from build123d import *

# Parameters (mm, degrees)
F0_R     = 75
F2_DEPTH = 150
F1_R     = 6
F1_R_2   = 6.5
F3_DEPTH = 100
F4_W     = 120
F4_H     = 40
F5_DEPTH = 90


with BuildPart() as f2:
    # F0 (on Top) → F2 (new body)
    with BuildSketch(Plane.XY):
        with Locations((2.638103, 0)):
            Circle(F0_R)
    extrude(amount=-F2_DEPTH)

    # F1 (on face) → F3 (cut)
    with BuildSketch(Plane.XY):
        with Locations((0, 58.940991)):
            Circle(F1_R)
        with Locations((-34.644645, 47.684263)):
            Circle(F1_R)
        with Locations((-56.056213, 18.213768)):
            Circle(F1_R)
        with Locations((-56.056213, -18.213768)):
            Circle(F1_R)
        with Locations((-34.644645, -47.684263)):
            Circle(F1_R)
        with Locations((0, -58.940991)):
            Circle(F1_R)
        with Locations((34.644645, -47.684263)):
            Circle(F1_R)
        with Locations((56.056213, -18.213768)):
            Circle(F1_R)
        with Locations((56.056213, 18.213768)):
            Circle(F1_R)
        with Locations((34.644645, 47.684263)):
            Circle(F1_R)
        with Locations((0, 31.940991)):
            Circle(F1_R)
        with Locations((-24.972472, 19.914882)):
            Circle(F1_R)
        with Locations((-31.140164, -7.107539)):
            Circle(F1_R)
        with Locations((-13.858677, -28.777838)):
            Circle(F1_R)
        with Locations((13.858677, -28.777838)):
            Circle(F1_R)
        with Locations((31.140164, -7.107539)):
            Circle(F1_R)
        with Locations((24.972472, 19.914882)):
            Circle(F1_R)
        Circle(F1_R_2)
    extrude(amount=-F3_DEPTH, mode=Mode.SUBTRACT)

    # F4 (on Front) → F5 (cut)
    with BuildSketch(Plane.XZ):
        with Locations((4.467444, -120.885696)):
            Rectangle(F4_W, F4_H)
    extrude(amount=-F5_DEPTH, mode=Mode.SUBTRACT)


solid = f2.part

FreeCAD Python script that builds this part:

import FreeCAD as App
import Part
import Sketcher

V = App.Vector

doc = App.newDocument("Part")
body = doc.addObject("PartDesign::Body", "Body")

# Sketch on XY plane
sketch1 = doc.addObject("Sketcher::SketchObject", "Sketch")
body.addObject(sketch1)
sketch1.AttachmentSupport = (doc.XY_Plane, [""])
sketch1.MapMode = "FlatFace"
sketch1.addGeometry(Part.Circle(V(3, 0, 0), V(0, 0, 1), 75), False)
sketch1.addConstraint(Sketcher.Constraint("PointOnObject", 0, 3, -1))
sketch1.addConstraint(Sketcher.Constraint("Diameter", 0, 150.0))
sketch1.addConstraint(Sketcher.Constraint("DistanceX", -1, 1, 0, 3, 2.638103))
pad1 = doc.addObject("PartDesign::Pad", "Pad")
body.addObject(pad1)
pad1.Profile = sketch1
pad1.Length = 150
pad1.Reversed = True

# Sketch on XY plane
sketch2 = doc.addObject("Sketcher::SketchObject", "Sketch001")
body.addObject(sketch2)
sketch2.AttachmentSupport = (doc.XY_Plane, [""])
sketch2.MapMode = "FlatFace"
sketch2.addGeometry(Part.Circle(V(0, 59, 0), V(0, 0, 1), 6), False)
sketch2.addGeometry(Part.Circle(V(-35, 48, 0), V(0, 0, 1), 6), False)
sketch2.addGeometry(Part.Circle(V(-56, 18, 0), V(0, 0, 1), 6), False)
sketch2.addGeometry(Part.Circle(V(-56, -18, 0), V(0, 0, 1), 6), False)
sketch2.addGeometry(Part.Circle(V(-35, -48, 0), V(0, 0, 1), 6), False)
sketch2.addGeometry(Part.Circle(V(0, -59, 0), V(0, 0, 1), 6), False)
sketch2.addGeometry(Part.Circle(V(35, -48, 0), V(0, 0, 1), 6), False)
sketch2.addGeometry(Part.Circle(V(56, -18, 0), V(0, 0, 1), 6), False)
sketch2.addGeometry(Part.Circle(V(56, 18, 0), V(0, 0, 1), 6), False)
sketch2.addGeometry(Part.Circle(V(35, 48, 0), V(0, 0, 1), 6), False)
sketch2.addGeometry(Part.Circle(V(0, 32, 0), V(0, 0, 1), 6), False)
sketch2.addGeometry(Part.Circle(V(-25, 20, 0), V(0, 0, 1), 6), False)
sketch2.addGeometry(Part.Circle(V(-31, -7, 0), V(0, 0, 1), 6), False)
sketch2.addGeometry(Part.Circle(V(-14, -29, 0), V(0, 0, 1), 6), False)
sketch2.addGeometry(Part.Circle(V(14, -29, 0), V(0, 0, 1), 6), False)
sketch2.addGeometry(Part.Circle(V(31, -7, 0), V(0, 0, 1), 6), False)
sketch2.addGeometry(Part.Circle(V(25, 20, 0), V(0, 0, 1), 6), False)
sketch2.addGeometry(Part.Circle(V(0, 0, 0), V(0, 0, 1), 6), False)
sketch2.addConstraint(Sketcher.Constraint("Coincident", 17, 3, -1, 1))
sketch2.addConstraint(Sketcher.Constraint("Equal", 0, 1))
sketch2.addConstraint(Sketcher.Constraint("Equal", 1, 2))
sketch2.addConstraint(Sketcher.Constraint("Equal", 2, 3))
sketch2.addConstraint(Sketcher.Constraint("Equal", 3, 4))
sketch2.addConstraint(Sketcher.Constraint("Equal", 4, 5))
sketch2.addConstraint(Sketcher.Constraint("Equal", 5, 6))
sketch2.addConstraint(Sketcher.Constraint("Equal", 6, 7))
sketch2.addConstraint(Sketcher.Constraint("Equal", 7, 8))
sketch2.addConstraint(Sketcher.Constraint("Equal", 8, 9))
sketch2.addConstraint(Sketcher.Constraint("Equal", 9, 10))
sketch2.addConstraint(Sketcher.Constraint("Equal", 10, 11))
sketch2.addConstraint(Sketcher.Constraint("Equal", 11, 12))
sketch2.addConstraint(Sketcher.Constraint("Equal", 12, 13))
sketch2.addConstraint(Sketcher.Constraint("Equal", 13, 14))
sketch2.addConstraint(Sketcher.Constraint("Equal", 14, 15))
sketch2.addConstraint(Sketcher.Constraint("Equal", 15, 16))
sketch2.addConstraint(Sketcher.Constraint("Symmetric", 0, 3, 5, 3, -1, 1))
sketch2.addConstraint(Sketcher.Constraint("Symmetric", 1, 3, 6, 3, -1, 1))
sketch2.addConstraint(Sketcher.Constraint("Symmetric", 2, 3, 7, 3, -1, 1))
sketch2.addConstraint(Sketcher.Constraint("Symmetric", 3, 3, 8, 3, -1, 1))
sketch2.addConstraint(Sketcher.Constraint("Symmetric", 4, 3, 9, 3, -1, 1))
sketch2.addConstraint(Sketcher.Constraint("Symmetric", 4, 3, 6, 3, -2))
sketch2.addConstraint(Sketcher.Constraint("Symmetric", 3, 3, 7, 3, -2))
sketch2.addConstraint(Sketcher.Constraint("Symmetric", 13, 3, 14, 3, -2))
sketch2.addConstraint(Sketcher.Constraint("Symmetric", 12, 3, 15, 3, -2))
sketch2.addConstraint(Sketcher.Constraint("Symmetric", 11, 3, 16, 3, -2))
sketch2.addConstraint(Sketcher.Constraint("PointOnObject", 0, 3, -2))
sketch2.addConstraint(Sketcher.Constraint("PointOnObject", 10, 3, -2))
sketch2.addConstraint(Sketcher.Constraint("Diameter", 0, 12.0))
sketch2.addConstraint(Sketcher.Constraint("Diameter", 17, 13.0))
sketch2.addConstraint(Sketcher.Constraint("DistanceY", 10, 3, 0, 3, 27.0))
sketch2.addConstraint(Sketcher.Constraint("DistanceY", 13, 3, 12, 3, 21.670299))
sketch2.addConstraint(Sketcher.Constraint("DistanceY", -1, 1, 0, 3, 58.940991))
sketch2.addConstraint(Sketcher.Constraint("DistanceY", -1, 1, 2, 3, 18.213768))
sketch2.addConstraint(Sketcher.Constraint("DistanceX", 11, 3, -1, 1, 24.972472))
sketch2.addConstraint(Sketcher.Constraint("DistanceY", -1, 1, 11, 3, 19.914882))
sketch2.addConstraint(Sketcher.Constraint("DistanceY", 12, 3, -1, 1, 7.107539))
sketch2.addConstraint(Sketcher.Constraint("DistanceX", 2, 3, 1, 3, 21.411568))
sketch2.addConstraint(Sketcher.Constraint("DistanceY", 3, 3, 1, 3, 65.898031))
sketch2.addConstraint(Sketcher.Constraint("DistanceX", 4, 3, 6, 3, 69.28929))
sketch2.addConstraint(Sketcher.Constraint("DistanceX", 3, 3, 12, 3, 24.916049))
sketch2.addConstraint(Sketcher.Constraint("DistanceX", 12, 3, 14, 3, 44.998841))
pocket1 = doc.addObject("PartDesign::Pocket", "Pocket")
body.addObject(pocket1)
pocket1.Profile = sketch2
pocket1.Length = 100

# Sketch on XZ plane
sketch3 = doc.addObject("Sketcher::SketchObject", "Sketch002")
body.addObject(sketch3)
sketch3.AttachmentSupport = (doc.XZ_Plane, [""])
sketch3.MapMode = "FlatFace"
sketch3.addGeometry(Part.LineSegment(V(-56, -101, 0), V(-56, -141, 0)), False)
sketch3.addGeometry(Part.LineSegment(V(-56, -141, 0), V(64, -141, 0)), False)
sketch3.addGeometry(Part.LineSegment(V(64, -141, 0), V(64, -101, 0)), False)
sketch3.addGeometry(Part.LineSegment(V(64, -101, 0), V(-56, -101, 0)), False)
sketch3.addConstraint(Sketcher.Constraint("Coincident", 0, 2, 1, 1))
sketch3.addConstraint(Sketcher.Constraint("Coincident", 1, 2, 2, 1))
sketch3.addConstraint(Sketcher.Constraint("Coincident", 2, 2, 3, 1))
sketch3.addConstraint(Sketcher.Constraint("Coincident", 3, 2, 0, 1))
sketch3.addConstraint(Sketcher.Constraint("Vertical", 0))
sketch3.addConstraint(Sketcher.Constraint("Horizontal", 1))
sketch3.addConstraint(Sketcher.Constraint("Vertical", 2))
sketch3.addConstraint(Sketcher.Constraint("Horizontal", 3))
sketch3.addConstraint(Sketcher.Constraint("DistanceX", 1, 1, 1, 2, 120.0))
sketch3.addConstraint(Sketcher.Constraint("DistanceY", 0, 2, 0, 1, 40.0))
sketch3.addConstraint(Sketcher.Constraint("DistanceX", 0, 2, -1, 1, 55.532556))
sketch3.addConstraint(Sketcher.Constraint("DistanceY", 0, 2, -1, 1, 140.885696))
pocket2 = doc.addObject("PartDesign::Pocket", "Pocket001")
body.addObject(pocket2)
pocket2.Profile = sketch3
pocket2.Length = 90

doc.recompute()
